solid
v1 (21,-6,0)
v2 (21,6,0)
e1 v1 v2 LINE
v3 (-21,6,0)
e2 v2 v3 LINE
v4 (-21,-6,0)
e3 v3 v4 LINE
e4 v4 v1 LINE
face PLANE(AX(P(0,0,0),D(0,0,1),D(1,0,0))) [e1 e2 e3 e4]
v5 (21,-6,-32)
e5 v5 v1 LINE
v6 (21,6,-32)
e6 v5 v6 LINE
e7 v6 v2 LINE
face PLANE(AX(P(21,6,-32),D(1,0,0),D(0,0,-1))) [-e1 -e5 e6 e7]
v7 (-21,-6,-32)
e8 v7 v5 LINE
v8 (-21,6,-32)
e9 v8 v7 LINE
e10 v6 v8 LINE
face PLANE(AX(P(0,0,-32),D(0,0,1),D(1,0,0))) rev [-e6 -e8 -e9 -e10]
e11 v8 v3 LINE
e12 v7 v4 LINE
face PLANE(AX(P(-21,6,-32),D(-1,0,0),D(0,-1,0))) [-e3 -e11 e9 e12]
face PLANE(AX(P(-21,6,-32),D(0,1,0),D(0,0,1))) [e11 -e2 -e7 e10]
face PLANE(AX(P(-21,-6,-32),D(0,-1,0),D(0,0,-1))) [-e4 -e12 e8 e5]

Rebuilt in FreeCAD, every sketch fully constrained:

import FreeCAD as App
import Part
import Sketcher
from FreeCAD import Vector
Q = App.Units.Quantity


def add_polygon(sketch, points):
    """Adds a closed chain of lines whose ends are joined by coincident constraints."""
    first, n = sketch.GeometryCount, len(points)
    for a, b in zip(points, points[1:] + points[:1]):
        sketch.addGeometry(Part.LineSegment(App.Vector(*a, 0), App.Vector(*b, 0)), False)
    for i in range(n):
        sketch.addConstraint(Sketcher.Constraint("Coincident", first + i, 2, first + (i + 1) % n, 1))

doc = App.newDocument("Part")
body = doc.addObject("PartDesign::Body", "Body")

sketch1 = doc.addObject("Sketcher::SketchObject", "Sketch")
body.addObject(sketch1)
sketch1.AttachmentSupport = (doc.XY_Plane, [""])
sketch1.MapMode = "FlatFace"
add_polygon(sketch1, [(-21, 6), (-21, -6), (21, -6), (21, 6)])
sketch1.addConstraint([
    Sketcher.Constraint("Vertical", 0),
    Sketcher.Constraint("Horizontal", 1),
    Sketcher.Constraint("Vertical", 2),
    Sketcher.Constraint("Horizontal", 3),
    Sketcher.Constraint("Symmetric", 0, 2, 2, 2, -1, 1),
    Sketcher.Constraint("DistanceX", 1, 1, 1, 2, Q("42 mm")),
    Sketcher.Constraint("DistanceY", 0, 2, 0, 1, Q("12 mm")),
])
pad1 = doc.addObject("PartDesign::Pad", "Pad")
body.addObject(pad1)
pad1.Profile = sketch1
pad1.Length = 32
pad1.Reversed = True

doc.recompute()
